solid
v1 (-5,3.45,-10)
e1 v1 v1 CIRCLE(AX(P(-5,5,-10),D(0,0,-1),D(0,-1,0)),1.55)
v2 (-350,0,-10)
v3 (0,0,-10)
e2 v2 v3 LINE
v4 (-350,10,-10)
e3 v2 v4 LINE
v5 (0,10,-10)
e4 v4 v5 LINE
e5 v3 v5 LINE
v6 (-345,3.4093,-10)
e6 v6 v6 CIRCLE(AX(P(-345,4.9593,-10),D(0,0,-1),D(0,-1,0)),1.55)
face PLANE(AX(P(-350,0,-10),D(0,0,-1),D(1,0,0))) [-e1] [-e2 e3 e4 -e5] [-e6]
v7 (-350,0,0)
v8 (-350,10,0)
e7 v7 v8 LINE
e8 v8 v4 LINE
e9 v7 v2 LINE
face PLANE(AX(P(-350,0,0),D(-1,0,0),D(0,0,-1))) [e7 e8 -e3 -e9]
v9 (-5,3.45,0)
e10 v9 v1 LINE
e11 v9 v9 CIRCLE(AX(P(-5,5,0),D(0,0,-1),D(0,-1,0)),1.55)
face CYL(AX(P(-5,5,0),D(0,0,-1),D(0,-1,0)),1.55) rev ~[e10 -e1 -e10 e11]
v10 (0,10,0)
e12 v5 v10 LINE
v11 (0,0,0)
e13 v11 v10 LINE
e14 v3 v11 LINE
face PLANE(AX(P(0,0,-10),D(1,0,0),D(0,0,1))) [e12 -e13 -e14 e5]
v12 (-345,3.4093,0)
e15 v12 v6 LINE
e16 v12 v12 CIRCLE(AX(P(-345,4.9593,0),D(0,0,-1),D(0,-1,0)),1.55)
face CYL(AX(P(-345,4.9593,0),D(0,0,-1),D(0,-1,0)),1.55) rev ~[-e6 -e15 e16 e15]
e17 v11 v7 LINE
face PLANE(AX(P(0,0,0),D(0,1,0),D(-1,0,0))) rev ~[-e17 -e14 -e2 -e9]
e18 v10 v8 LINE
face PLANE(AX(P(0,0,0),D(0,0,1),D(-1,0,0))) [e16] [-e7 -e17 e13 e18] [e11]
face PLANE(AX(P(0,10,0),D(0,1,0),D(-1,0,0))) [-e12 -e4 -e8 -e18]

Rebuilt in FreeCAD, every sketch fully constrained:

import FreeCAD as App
import Part
import Sketcher
from FreeCAD import Vector


def add_polygon(sketch, points):
    """Adds a closed chain of lines whose ends are joined by coincident constraints."""
    first, n = sketch.GeometryCount, len(points)
    for a, b in zip(points, points[1:] + points[:1]):
        sketch.addGeometry(Part.LineSegment(App.Vector(*a, 0), App.Vector(*b, 0)), False)
    for i in range(n):
        sketch.addConstraint(Sketcher.Constraint("Coincident", first + i, 2, first + (i + 1) % n, 1))

doc = App.newDocument("Part")
body = doc.addObject("PartDesign::Body", "Body")

sketch1 = body.newObject("Sketcher::SketchObject", "Sketch")
sketch1.AttachmentSupport = (doc.getObject("XZ_Plane"), [""])
sketch1.MapMode = "FlatFace"
add_polygon(sketch1, [(-350, 0), (0, 0), (0, -10), (-350, -10)])
sketch1.addConstraint([
    Sketcher.Constraint("Horizontal", 0),
    Sketcher.Constraint("Vertical", 1),
    Sketcher.Constraint("Horizontal", 2),
    Sketcher.Constraint("Vertical", 3),
    Sketcher.Constraint("Coincident", 0, 2, -1, 1),
    Sketcher.Constraint("DistanceX", 0, 1, 0, 2, 350.0),
    Sketcher.Constraint("DistanceY", 1, 2, 1, 1, 10.0),
])
pad1 = body.newObject("PartDesign::Pad", "Pad")
pad1.Profile = sketch1
pad1.Length = 10
pad1.Reversed = True

sketch2 = body.newObject("Sketcher::SketchObject", "Sketch001")
sketch2.AttachmentSupport = (doc.getObject("XY_Plane"), [""])
sketch2.MapMode = "FlatFace"
sketch2.addGeometry([
    Part.Circle(Vector(-5, 5, 0), Vector(0, 0, 1), 1.55),
    Part.Circle(Vector(-345, 4.9593, 0), Vector(0, 0, 1), 1.55),
], False)
sketch2.addConstraint([
    Sketcher.Constraint("Equal", 0, 1),
    Sketcher.Constraint("Diameter", 0, 3.1),
    Sketcher.Constraint("DistanceX", 0, 3, -1, 1, 5.0),
    Sketcher.Constraint("DistanceY", -1, 1, 0, 3, 5.0),
    Sketcher.Constraint("DistanceX", 1, 3, -1, 1, 345.0),
    Sketcher.Constraint("DistanceY", -1, 1, 1, 3, 4.9593),
])
doc.recompute()
hole = body.newObject("PartDesign::Hole", "Hole")
hole.Profile = sketch2
hole.ThreadType = "None"
hole.Diameter = 3.1
hole.DepthType = "ThroughAll"

doc.recompute()
